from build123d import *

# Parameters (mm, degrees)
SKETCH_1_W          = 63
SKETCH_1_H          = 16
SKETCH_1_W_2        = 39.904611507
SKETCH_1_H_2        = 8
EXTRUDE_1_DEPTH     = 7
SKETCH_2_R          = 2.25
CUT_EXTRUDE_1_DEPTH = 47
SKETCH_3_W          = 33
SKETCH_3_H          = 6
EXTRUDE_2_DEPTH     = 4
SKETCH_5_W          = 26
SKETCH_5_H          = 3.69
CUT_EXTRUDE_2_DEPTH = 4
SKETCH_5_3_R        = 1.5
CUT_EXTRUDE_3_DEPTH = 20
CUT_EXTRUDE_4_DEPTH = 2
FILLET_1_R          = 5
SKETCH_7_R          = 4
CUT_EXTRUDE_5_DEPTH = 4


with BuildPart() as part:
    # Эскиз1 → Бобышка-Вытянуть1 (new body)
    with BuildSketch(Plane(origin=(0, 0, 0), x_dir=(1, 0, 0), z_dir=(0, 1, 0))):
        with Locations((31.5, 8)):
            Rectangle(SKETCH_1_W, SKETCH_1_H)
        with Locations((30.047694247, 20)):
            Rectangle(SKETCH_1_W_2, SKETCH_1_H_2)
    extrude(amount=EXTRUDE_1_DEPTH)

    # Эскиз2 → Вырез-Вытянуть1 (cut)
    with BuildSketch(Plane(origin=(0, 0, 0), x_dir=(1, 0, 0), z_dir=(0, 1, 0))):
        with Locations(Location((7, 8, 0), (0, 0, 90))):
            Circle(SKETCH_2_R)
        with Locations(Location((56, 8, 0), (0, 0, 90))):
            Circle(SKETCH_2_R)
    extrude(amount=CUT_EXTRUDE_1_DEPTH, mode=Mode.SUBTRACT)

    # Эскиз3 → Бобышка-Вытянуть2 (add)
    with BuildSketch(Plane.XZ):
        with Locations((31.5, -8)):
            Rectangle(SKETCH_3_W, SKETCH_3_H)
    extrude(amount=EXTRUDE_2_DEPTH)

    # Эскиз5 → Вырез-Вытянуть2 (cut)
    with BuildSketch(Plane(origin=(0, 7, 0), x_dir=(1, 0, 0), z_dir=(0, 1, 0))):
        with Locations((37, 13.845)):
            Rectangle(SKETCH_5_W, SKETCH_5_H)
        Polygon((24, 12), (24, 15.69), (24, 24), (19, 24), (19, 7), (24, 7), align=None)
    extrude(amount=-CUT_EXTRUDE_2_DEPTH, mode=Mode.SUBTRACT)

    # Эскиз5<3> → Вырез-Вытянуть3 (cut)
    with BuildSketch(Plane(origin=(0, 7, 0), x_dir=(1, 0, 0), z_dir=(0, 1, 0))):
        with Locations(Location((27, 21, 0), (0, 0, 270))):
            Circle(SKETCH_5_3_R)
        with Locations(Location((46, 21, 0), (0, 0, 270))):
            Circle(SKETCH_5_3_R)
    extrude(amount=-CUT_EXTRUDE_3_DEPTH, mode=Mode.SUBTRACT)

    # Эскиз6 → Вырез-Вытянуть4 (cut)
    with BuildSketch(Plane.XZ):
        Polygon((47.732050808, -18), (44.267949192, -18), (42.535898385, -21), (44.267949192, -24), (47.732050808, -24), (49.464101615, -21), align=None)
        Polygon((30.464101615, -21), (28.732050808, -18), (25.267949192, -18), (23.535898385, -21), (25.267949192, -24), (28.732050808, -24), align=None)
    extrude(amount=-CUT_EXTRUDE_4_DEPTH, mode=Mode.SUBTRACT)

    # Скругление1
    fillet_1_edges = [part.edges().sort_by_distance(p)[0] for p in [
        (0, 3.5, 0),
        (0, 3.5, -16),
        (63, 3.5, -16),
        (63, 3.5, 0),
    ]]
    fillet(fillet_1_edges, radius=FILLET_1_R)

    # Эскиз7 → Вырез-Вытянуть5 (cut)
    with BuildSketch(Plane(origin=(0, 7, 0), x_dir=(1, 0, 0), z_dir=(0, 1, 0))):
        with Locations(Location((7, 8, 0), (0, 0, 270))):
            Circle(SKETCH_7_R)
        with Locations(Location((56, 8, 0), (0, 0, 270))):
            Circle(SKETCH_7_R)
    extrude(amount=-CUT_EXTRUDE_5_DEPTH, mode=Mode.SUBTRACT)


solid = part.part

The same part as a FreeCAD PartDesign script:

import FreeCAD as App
import Part
import Sketcher
from FreeCAD import Vector
Q = App.Units.Quantity


def edges_at(feature, points):
    """Names of the edges that pass closest to the given points."""
    edges = feature.Shape.Edges
    near = lambda p: min(range(len(edges)), key=lambda i: edges[i].distToShape(Part.Vertex(*p))[0])
    return sorted({f"Edge{near(p) + 1}" for p in points})

doc = App.newDocument("Part")
params = doc.addObject("Spreadsheet::Sheet", "Params")
for row, (alias, value) in enumerate([
    ("sketch1_width", "63 mm"),
    ("sketch1_width2", "13 mm"),
    ("sketch1_height", "16 mm"),
    ("sketch1_height2", "8 mm"),
    ("pad1_length", "7 mm"),
    ("sketch2_diameter", "4.5 mm"),
    ("pocket1_length", "47 mm"),
    ("sketch3_width", "33 mm"),
    ("sketch3_height", "6 mm"),
    ("pad2_length", "4 mm"),
    ("sketch4_width", "26 mm"),
    ("sketch4_width2", "5 mm"),
    ("sketch4_height", "17 mm"),
    ("sketch4_height2", "3.69 mm"),
    ("pocket2_length", "4 mm"),
    ("sketch5_diameter", "3 mm"),
    ("pocket3_length", "20 mm"),
    ("pocket4_length", "2 mm"),
    ("fillet_radius", "5 mm"),
    ("sketch7_diameter", "8 mm"),
    ("pocket5_length", "4 mm"),
], start=1):
    params.set(f"A{row}", alias)
    params.set(f"B{row}", "=" + value)
    params.setAlias(f"B{row}", alias)

body = doc.addObject("PartDesign::Body", "Body")

sketch1 = body.newObject("Sketcher::SketchObject", "Sketch")
sketch1.AttachmentSupport = (doc.getObject("XZ_Plane"), [""])
sketch1.MapMode = "FlatFace"
sketch1.addGeometry(Part.LineSegment(Vector(0, -16, 0), Vector(0, 0, 0)), False)
sketch1.addGeometry(Part.LineSegment(Vector(0, 0, 0), Vector(63, 0, 0)), False)
sketch1.addGeometry(Part.LineSegment(Vector(63, 0, 0), Vector(63, -16, 0)), False)
sketch1.addGeometry(Part.LineSegment(Vector(63, -16, 0), Vector(50, -16, 0)), False)
sketch1.addGeometry(Part.LineSegment(Vector(50, -16, 0), Vector(50, -24, 0)), False)
sketch1.addGeometry(Part.LineSegment(Vector(50, -24, 0), Vector(10, -24, 0)), False)
sketch1.addGeometry(Part.LineSegment(Vector(10, -24, 0), Vector(10, -16, 0)), False)
sketch1.addGeometry(Part.LineSegment(Vector(10, -16, 0), Vector(0, -16, 0)), False)
sketch1.addConstraint(Sketcher.Constraint("Coincident", 0, 2, 1, 1))
sketch1.addConstraint(Sketcher.Constraint("Coincident", 1, 2, 2, 1))
sketch1.addConstraint(Sketcher.Constraint("Coincident", 2, 2, 3, 1))
sketch1.addConstraint(Sketcher.Constraint("Coincident", 3, 2, 4, 1))
sketch1.addConstraint(Sketcher.Constraint("Coincident", 4, 2, 5, 1))
sketch1.addConstraint(Sketcher.Constraint("Coincident", 5, 2, 6, 1))
sketch1.addConstraint(Sketcher.Constraint("Coincident", 6, 2, 7, 1))
sketch1.addConstraint(Sketcher.Constraint("Coincident", 7, 2, 0, 1))
sketch1.addConstraint(Sketcher.Constraint("Vertical", 0))
sketch1.addConstraint(Sketcher.Constraint("Horizontal", 1))
sketch1.addConstraint(Sketcher.Constraint("Vertical", 2))
sketch1.addConstraint(Sketcher.Constraint("Horizontal", 3))
sketch1.addConstraint(Sketcher.Constraint("Vertical", 4))
sketch1.addConstraint(Sketcher.Constraint("Horizontal", 5))
sketch1.addConstraint(Sketcher.Constraint("Vertical", 6))
sketch1.addConstraint(Sketcher.Constraint("Horizontal", 7))
sketch1.addConstraint(Sketcher.Constraint("Coincident", 0, 2, -1, 1))
sketch1.addConstraint(Sketcher.Constraint("Horizontal", 3, 2, 6, 2))
sketch1.addConstraint(Sketcher.Constraint("DistanceX", 1, 1, 1, 2, 63.0))
sketch1.addConstraint(Sketcher.Constraint("DistanceX", 3, 2, 3, 1, 13.0))
sketch1.addConstraint(Sketcher.Constraint("DistanceY", 0, 1, 0, 2, 16.0))
sketch1.addConstraint(Sketcher.Constraint("DistanceY", 4, 2, 4, 1, 8.0))
sketch1.addConstraint(Sketcher.Constraint("DistanceX", 5, 2, 5, 1, 39.904612))
sketch1.setExpression("Constraints[18]", "Params.sketch1_width")
sketch1.setExpression("Constraints[19]", "Params.sketch1_width2")
sketch1.setExpression("Constraints[20]", "Params.sketch1_height")
sketch1.setExpression("Constraints[21]", "Params.sketch1_height2")
pad1 = body.newObject("PartDesign::Pad", "Pad")
pad1.Profile = sketch1
pad1.setExpression("Length", "Params.pad1_length")
pad1.Reversed = True

sketch2 = body.newObject("Sketcher::SketchObject", "Sketch001")
sketch2.AttachmentSupport = (doc.getObject("XZ_Plane"), [""])
sketch2.MapMode = "FlatFace"
sketch2.addGeometry(Part.Circle(Vector(7, -8, 0), Vector(0, 0, 1), 2.2), False)
sketch2.addGeometry(Part.Circle(Vector(56, -8, 0), Vector(0, 0, 1), 2.2), False)
sketch2.addConstraint(Sketcher.Constraint("Equal", 0, 1))
sketch2.addConstraint(Sketcher.Constraint("Horizontal", 0, 3, 1, 3))
sketch2.addConstraint(Sketcher.Constraint("Diameter", 0, 4.5))
sketch2.addConstraint(Sketcher.Constraint("DistanceX", -1, 1, 0, 3, 7.0))
sketch2.addConstraint(Sketcher.Constraint("DistanceY", 0, 3, -1, 1, 8.0))
sketch2.addConstraint(Sketcher.Constraint("DistanceX", -1, 1, 1, 3, 56.0))
sketch2.setExpression("Constraints[2]", "Params.sketch2_diameter")
pocket1 = body.newObject("PartDesign::Pocket", "Pocket")
pocket1.Profile = sketch2
pocket1.setExpression("Length", "Params.pocket1_length")

sketch3 = body.newObject("Sketcher::SketchObject", "Sketch002")
sketch3.AttachmentSupport = (doc.getObject("XZ_Plane"), [""])
sketch3.MapMode = "FlatFace"
sketch3.addGeometry(Part.LineSegment(Vector(15, -5, 0), Vector(15, -11, 0)), False)
sketch3.addGeometry(Part.LineSegment(Vector(15, -11, 0), Vector(48, -11, 0)), False)
sketch3.addGeometry(Part.LineSegment(Vector(48, -11, 0), Vector(48, -5, 0)), False)
sketch3.addGeometry(Part.LineSegment(Vector(48, -5, 0), Vector(15, -5, 0)), False)
sketch3.addConstraint(Sketcher.Constraint("Coincident", 0, 2, 1, 1))
sketch3.addConstraint(Sketcher.Constraint("Coincident", 1, 2, 2, 1))
sketch3.addConstraint(Sketcher.Constraint("Coincident", 2, 2, 3, 1))
sketch3.addConstraint(Sketcher.Constraint("Coincident", 3, 2, 0, 1))
sketch3.addConstraint(Sketcher.Constraint("Vertical", 0))
sketch3.addConstraint(Sketcher.Constraint("Horizontal", 1))
sketch3.addConstraint(Sketcher.Constraint("Vertical", 2))
sketch3.addConstraint(Sketcher.Constraint("Horizontal", 3))
sketch3.addConstraint(Sketcher.Constraint("DistanceX", 1, 1, 1, 2, 33.0))
sketch3.addConstraint(Sketcher.Constraint("DistanceY", 0, 2, 0, 1, 6.0))
sketch3.addConstraint(Sketcher.Constraint("DistanceX", -1, 1, 0, 2, 15.0))
sketch3.addConstraint(Sketcher.Constraint("DistanceY", 0, 2, -1, 1, 11.0))
sketch3.setExpression("Constraints[8]", "Params.sketch3_width")
sketch3.setExpression("Constraints[9]", "Params.sketch3_height")
pad2 = body.newObject("PartDesign::Pad", "Pad001")
pad2.Profile = sketch3
pad2.setExpression("Length", "Params.pad2_length")

sketch4 = body.newObject("Sketcher::SketchObject", "Sketch003")
sketch4.AttachmentSupport = (doc.getObject("XZ_Plane"), [""])
sketch4.MapMode = "FlatFace"
sketch4.AttachmentOffset = App.Placement(Vector(0, 0, -7), App.Rotation())
sketch4.addGeometry(Part.LineSegment(Vector(24, -12, 0), Vector(50, -12, 0)), False)
sketch4.addGeometry(Part.LineSegment(Vector(50, -12, 0), Vector(50, -15.7, 0)), False)
sketch4.addGeometry(Part.LineSegment(Vector(50, -15.7, 0), Vector(24, -15.7, 0)), False)
sketch4.addGeometry(Part.LineSegment(Vector(24, -15.7, 0), Vector(24, -24, 0)), False)
sketch4.addGeometry(Part.LineSegment(Vector(24, -24, 0), Vector(19, -24, 0)), False)
sketch4.addGeometry(Part.LineSegment(Vector(19, -24, 0), Vector(19, -7, 0)), False)
sketch4.addGeometry(Part.LineSegment(Vector(19, -7, 0), Vector(24, -7, 0)), False)
sketch4.addGeometry(Part.LineSegment(Vector(24, -7, 0), Vector(24, -12, 0)), False)
sketch4.addConstraint(Sketcher.Constraint("Coincident", 0, 2, 1, 1))
sketch4.addConstraint(Sketcher.Constraint("Coincident", 1, 2, 2, 1))
sketch4.addConstraint(Sketcher.Constraint("Coincident", 2, 2, 3, 1))
sketch4.addConstraint(Sketcher.Constraint("Coincident", 3, 2, 4, 1))
sketch4.addConstraint(Sketcher.Constraint("Coincident", 4, 2, 5, 1))
sketch4.addConstraint(Sketcher.Constraint("Coincident", 5, 2, 6, 1))
sketch4.addConstraint(Sketcher.Constraint("Coincident", 6, 2, 7, 1))
sketch4.addConstraint(Sketcher.Constraint("Coincident", 7, 2, 0, 1))
sketch4.addConstraint(Sketcher.Constraint("Horizontal", 0))
sketch4.addConstraint(Sketcher.Constraint("Vertical", 1))
sketch4.addConstraint(Sketcher.Constraint("Horizontal", 2))
sketch4.addConstraint(Sketcher.Constraint("Vertical", 3))
sketch4.addConstraint(Sketcher.Constraint("Horizontal", 4))
sketch4.addConstraint(Sketcher.Constraint("Vertical", 5))
sketch4.addConstraint(Sketcher.Constraint("Horizontal", 6))
sketch4.addConstraint(Sketcher.Constraint("Vertical", 7))
sketch4.addConstraint(Sketcher.Constraint("Vertical", 3, 2, 6, 2))
sketch4.addConstraint(Sketcher.Constraint("Equal", 6, 7))
sketch4.addConstraint(Sketcher.Constraint("DistanceX", 0, 1, 0, 2, 26.0))
sketch4.addConstraint(Sketcher.Constraint("DistanceX", 4, 2, 4, 1, 5.0))
sketch4.addConstraint(Sketcher.Constraint("DistanceY", 5, 1, 5, 2, 17.0))
sketch4.addConstraint(Sketcher.Constraint("DistanceX", -1, 1, 0, 2, 50.0))
sketch4.addConstraint(Sketcher.Constraint("DistanceY", 0, 2, -1, 1, 12.0))
sketch4.addConstraint(Sketcher.Constraint("DistanceY", 1, 2, 1, 1, 3.69))
sketch4.setExpression("Constraints[18]", "Params.sketch4_width")
sketch4.setExpression("Constraints[19]", "Params.sketch4_width2")
sketch4.setExpression("Constraints[20]", "Params.sketch4_height")
sketch4.setExpression("Constraints[23]", "Params.sketch4_height2")
pocket2 = body.newObject("PartDesign::Pocket", "Pocket001")
pocket2.Profile = sketch4
pocket2.setExpression("Length", "Params.pocket2_length")
pocket2.Reversed = True

sketch5 = body.newObject("Sketcher::SketchObject", "Sketch004")
sketch5.AttachmentSupport = (doc.getObject("XZ_Plane"), [""])
sketch5.MapMode = "FlatFace"
sketch5.AttachmentOffset = App.Placement(Vector(0, 0, -7), App.Rotation())
sketch5.addGeometry(Part.Circle(Vector(27, -21, 0), Vector(0, 0, 1), 1.5), False)
sketch5.addGeometry(Part.Circle(Vector(46, -21, 0), Vector(0, 0, 1), 1.5), False)
sketch5.addConstraint(Sketcher.Constraint("Equal", 0, 1))
sketch5.addConstraint(Sketcher.Constraint("Horizontal", 0, 3, 1, 3))
sketch5.addConstraint(Sketcher.Constraint("Diameter", 0, 3.0))
sketch5.addConstraint(Sketcher.Constraint("DistanceX", -1, 1, 0, 3, 27.0))
sketch5.addConstraint(Sketcher.Constraint("DistanceY", 0, 3, -1, 1, 21.0))
sketch5.addConstraint(Sketcher.Constraint("DistanceX", -1, 1, 1, 3, 46.0))
sketch5.setExpression("Constraints[2]", "Params.sketch5_diameter")
pocket3 = body.newObject("PartDesign::Pocket", "Pocket002")
pocket3.Profile = sketch5
pocket3.setExpression("Length", "Params.pocket3_length")
pocket3.Reversed = True

sketch6 = body.newObject("Sketcher::SketchObject", "Sketch005")
sketch6.AttachmentSupport = (doc.getObject("XZ_Plane"), [""])
sketch6.MapMode = "FlatFace"
sketch6.addGeometry(Part.LineSegment(Vector(47.7, -18, 0), Vector(44.3, -18, 0)), False)
sketch6.addGeometry(Part.LineSegment(Vector(44.3, -18, 0), Vector(42.5, -21, 0)), False)
sketch6.addGeometry(Part.LineSegment(Vector(42.5, -21, 0), Vector(44.3, -24, 0)), False)
sketch6.addGeometry(Part.LineSegment(Vector(44.3, -24, 0), Vector(47.7, -24, 0)), False)
sketch6.addGeometry(Part.LineSegment(Vector(47.7, -24, 0), Vector(49.5, -21, 0)), False)
sketch6.addGeometry(Part.LineSegment(Vector(49.5, -21, 0), Vector(47.7, -18, 0)), False)
sketch6.addGeometry(Part.LineSegment(Vector(30.5, -21, 0), Vector(28.7, -18, 0)), False)
sketch6.addGeometry(Part.LineSegment(Vector(28.7, -18, 0), Vector(25.3, -18, 0)), False)
sketch6.addGeometry(Part.LineSegment(Vector(25.3, -18, 0), Vector(23.5, -21, 0)), False)
sketch6.addGeometry(Part.LineSegment(Vector(23.5, -21, 0), Vector(25.3, -24, 0)), False)
sketch6.addGeometry(Part.LineSegment(Vector(25.3, -24, 0), Vector(28.7, -24, 0)), False)
sketch6.addGeometry(Part.LineSegment(Vector(28.7, -24, 0), Vector(30.5, -21, 0)), False)
sketch6.addConstraint(Sketcher.Constraint("Coincident", 0, 2, 1, 1))
sketch6.addConstraint(Sketcher.Constraint("Coincident", 1, 2, 2, 1))
sketch6.addConstraint(Sketcher.Constraint("Coincident", 2, 2, 3, 1))
sketch6.addConstraint(Sketcher.Constraint("Coincident", 3, 2, 4, 1))
sketch6.addConstraint(Sketcher.Constraint("Coincident", 4, 2, 5, 1))
sketch6.addConstraint(Sketcher.Constraint("Coincident", 5, 2, 0, 1))
sketch6.addConstraint(Sketcher.Constraint("Coincident", 6, 2, 7, 1))
sketch6.addConstraint(Sketcher.Constraint("Coincident", 7, 2, 8, 1))
sketch6.addConstraint(Sketcher.Constraint("Coincident", 8, 2, 9, 1))
sketch6.addConstraint(Sketcher.Constraint("Coincident", 9, 2, 10, 1))
sketch6.addConstraint(Sketcher.Constraint("Coincident", 10, 2, 11, 1))
sketch6.addConstraint(Sketcher.Constraint("Coincident", 11, 2, 6, 1))
sketch6.addConstraint(Sketcher.Constraint("Horizontal", 0))
sketch6.addConstraint(Sketcher.Constraint("Horizontal", 3))
sketch6.addConstraint(Sketcher.Constraint("Horizontal", 7))
sketch6.addConstraint(Sketcher.Constraint("Horizontal", 10))
sketch6.addConstraint(Sketcher.Constraint("Parallel", 1, 4))
sketch6.addConstraint(Sketcher.Constraint("Parallel", 2, 5))
sketch6.addConstraint(Sketcher.Constraint("Parallel", 5, 6))
sketch6.addConstraint(Sketcher.Constraint("Parallel", 4, 8))
sketch6.addConstraint(Sketcher.Constraint("Parallel", 6, 9))
sketch6.addConstraint(Sketcher.Constraint("Parallel", 8, 11))
sketch6.addConstraint(Sketcher.Constraint("Horizontal", 1, 2, 4, 2))
sketch6.addConstraint(Sketcher.Constraint("Horizontal", 5, 2, 6, 2))
sketch6.addConstraint(Sketcher.Constraint("Horizontal", 4, 2, 8, 2))
sketch6.addConstraint(Sketcher.Constraint("Horizontal", 3, 2, 9, 2))
sketch6.addConstraint(Sketcher.Constraint("Horizontal", 8, 2, 11, 2))
sketch6.addConstraint(Sketcher.Constraint("Vertical", 0, 2, 2, 2))
sketch6.addConstraint(Sketcher.Constraint("Vertical", 3, 2, 5, 2))
sketch6.addConstraint(Sketcher.Constraint("Equal", 3, 7))
sketch6.addConstraint(Sketcher.Constraint("Angle", 1, Q("-120 deg")))
sketch6.addConstraint(Sketcher.Constraint("DistanceY", 0, 2, -1, 1, 18.0))
sketch6.addConstraint(Sketcher.Constraint("DistanceY", 1, 2, -1, 1, 21.0))
sketch6.addConstraint(Sketcher.Constraint("DistanceX", 6, 2, 5, 2, 19.0))
sketch6.addConstraint(Sketcher.Constraint("DistanceX", 0, 2, 0, 1, 3.464102))
sketch6.addConstraint(Sketcher.Constraint("DistanceX", -1, 1, 1, 2, 42.535898))
pocket4 = body.newObject("PartDesign::Pocket", "Pocket003")
pocket4.Profile = sketch6
pocket4.setExpression("Length", "Params.pocket4_length")
doc.recompute()

fillet = body.newObject("PartDesign::Fillet", "Fillet")
fillet.Base = (pocket4, edges_at(pocket4, [
    (0, 3.5, 0),
    (0, 3.5, -16),
    (63, 3.5, -16),
    (63, 3.5, 0),
]))
fillet.setExpression("Radius", "Params.fillet_radius")

sketch7 = body.newObject("Sketcher::SketchObject", "Sketch006")
sketch7.AttachmentSupport = (doc.getObject("XZ_Plane"), [""])
sketch7.MapMode = "FlatFace"
sketch7.AttachmentOffset = App.Placement(Vector(0, 0, -7), App.Rotation())
sketch7.addGeometry(Part.Circle(Vector(7, -8, 0), Vector(0, 0, 1), 4), False)
sketch7.addGeometry(Part.Circle(Vector(56, -8, 0), Vector(0, 0, 1), 4), False)
sketch7.addConstraint(Sketcher.Constraint("Equal", 0, 1))
sketch7.addConstraint(Sketcher.Constraint("Horizontal", 0, 3, 1, 3))
sketch7.addConstraint(Sketcher.Constraint("Diameter", 0, 8.0))
sketch7.addConstraint(Sketcher.Constraint("DistanceX", -1, 1, 0, 3, 7.0))
sketch7.addConstraint(Sketcher.Constraint("DistanceY", 0, 3, -1, 1, 8.0))
sketch7.addConstraint(Sketcher.Constraint("DistanceX", -1, 1, 1, 3, 56.0))
sketch7.setExpression("Constraints[2]", "Params.sketch7_diameter")
pocket5 = body.newObject("PartDesign::Pocket", "Pocket004")
pocket5.Profile = sketch7
pocket5.setExpression("Length", "Params.pocket5_length")
pocket5.Reversed = True

doc.recompute()
